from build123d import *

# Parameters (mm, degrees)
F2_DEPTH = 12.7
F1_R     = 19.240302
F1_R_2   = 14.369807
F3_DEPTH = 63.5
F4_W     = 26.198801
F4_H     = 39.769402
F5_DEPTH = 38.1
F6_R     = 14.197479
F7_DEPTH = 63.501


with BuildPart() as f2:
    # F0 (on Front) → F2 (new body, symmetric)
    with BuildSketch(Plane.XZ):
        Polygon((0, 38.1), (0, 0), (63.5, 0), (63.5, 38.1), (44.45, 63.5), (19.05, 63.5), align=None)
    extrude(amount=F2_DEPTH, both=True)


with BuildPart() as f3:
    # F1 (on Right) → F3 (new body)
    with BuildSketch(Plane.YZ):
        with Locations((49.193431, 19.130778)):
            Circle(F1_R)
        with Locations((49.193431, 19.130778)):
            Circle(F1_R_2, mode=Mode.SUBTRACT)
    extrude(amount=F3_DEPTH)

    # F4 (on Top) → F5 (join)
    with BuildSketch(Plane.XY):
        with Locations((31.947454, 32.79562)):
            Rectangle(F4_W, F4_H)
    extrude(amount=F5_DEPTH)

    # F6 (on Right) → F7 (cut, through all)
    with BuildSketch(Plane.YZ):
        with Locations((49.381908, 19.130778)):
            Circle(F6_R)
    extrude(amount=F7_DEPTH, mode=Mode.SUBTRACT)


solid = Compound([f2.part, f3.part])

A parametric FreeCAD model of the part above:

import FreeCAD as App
import Part
import Sketcher
from FreeCAD import Vector
Q = App.Units.Quantity

doc = App.newDocument("Part")
body = doc.addObject("PartDesign::Body", "Body")

# Sketch on XZ plane
sketch1 = body.newObject("Sketcher::SketchObject", "Sketch")
sketch1.AttachmentSupport = (doc.getObject("XZ_Plane"), [""])
sketch1.MapMode = "FlatFace"
sketch1.addGeometry([
    Part.LineSegment(Vector(0, 38, 0), Vector(0, 0, 0)),  # 0
    Part.LineSegment(Vector(0, 0, 0), Vector(64, 0, 0)),  # 1
    Part.LineSegment(Vector(64, 0, 0), Vector(64, 38, 0)),  # 2
    Part.LineSegment(Vector(64, 38, 0), Vector(44, 64, 0)),  # 3
    Part.LineSegment(Vector(44, 64, 0), Vector(19, 64, 0)),  # 4
    Part.LineSegment(Vector(19, 64, 0), Vector(0, 38, 0)),  # 5
], False)
sketch1.addConstraint([
    Sketcher.Constraint("Coincident", 0, 2, 1, 1),
    Sketcher.Constraint("Coincident", 1, 2, 2, 1),
    Sketcher.Constraint("Coincident", 2, 2, 3, 1),
    Sketcher.Constraint("Coincident", 3, 2, 4, 1),
    Sketcher.Constraint("Coincident", 4, 2, 5, 1),
    Sketcher.Constraint("Coincident", 5, 2, 0, 1),
    Sketcher.Constraint("Vertical", 0),
    Sketcher.Constraint("Horizontal", 1),
    Sketcher.Constraint("Vertical", 2),
    Sketcher.Constraint("Horizontal", 4),
    Sketcher.Constraint("Coincident", 0, 2, -1, 1),
    Sketcher.Constraint("Horizontal", 2, 2, 5, 2),
    Sketcher.Constraint("Equal", 3, 5),
    Sketcher.Constraint("DistanceX", 4, 2, 4, 1, Q("1 in")),
    Sketcher.Constraint("DistanceX", 1, 1, 1, 2, Q("2.5 in")),
    Sketcher.Constraint("DistanceY", 0, 2, 0, 1, Q("1.5 in")),
    Sketcher.Constraint("DistanceY", 2, 2, 3, 2, Q("1 in")),
])
pad1 = body.newObject("PartDesign::Pad", "Pad")
pad1.Profile = sketch1
pad1.Length = Q("1 in")
pad1.Midplane = True
body2 = doc.addObject("PartDesign::Body", "Body001")

# Sketch on YZ plane
sketch2 = body2.newObject("Sketcher::SketchObject", "Sketch001")
sketch2.AttachmentSupport = (doc.getObject("YZ_Plane001"), [""])
sketch2.MapMode = "FlatFace"
sketch2.addGeometry([
    Part.Circle(Vector(49, 19, 0), Vector(0, 0, 1), 19),
    Part.Circle(Vector(49, 19, 0), Vector(0, 0, 1), 14),
], False)
sketch2.addConstraint([
    Sketcher.Constraint("Coincident", 1, 3, 0, 3),
    Sketcher.Constraint("Diameter", 0, Q("38.480604 mm")),
    Sketcher.Constraint("Diameter", 1, Q("28.739614 mm")),
    Sketcher.Constraint("DistanceX", -1, 1, 0, 3, Q("49.193431 mm")),
    Sketcher.Constraint("DistanceY", -1, 1, 0, 3, Q("19.130778 mm")),
])
pad2 = body2.newObject("PartDesign::Pad", "Pad001")
pad2.Profile = sketch2
pad2.Length = Q("2.5 in")

# Sketch on XY plane
sketch3 = body2.newObject("Sketcher::SketchObject", "Sketch002")
sketch3.AttachmentSupport = (doc.getObject("XY_Plane001"), [""])
sketch3.MapMode = "FlatFace"
sketch3.addGeometry([
    Part.LineSegment(Vector(19, 53, 0), Vector(19, 13, 0)),
    Part.LineSegment(Vector(19, 13, 0), Vector(45, 13, 0)),
    Part.LineSegment(Vector(45, 13, 0), Vector(45, 53, 0)),
    Part.LineSegment(Vector(45, 53, 0), Vector(19, 53, 0)),
], False)
sketch3.addConstraint([
    Sketcher.Constraint("Coincident", 0, 2, 1, 1),
    Sketcher.Constraint("Coincident", 1, 2, 2, 1),
    Sketcher.Constraint("Coincident", 2, 2, 3, 1),
    Sketcher.Constraint("Coincident", 3, 2, 0, 1),
    Sketcher.Constraint("Vertical", 0),
    Sketcher.Constraint("Horizontal", 1),
    Sketcher.Constraint("Vertical", 2),
    Sketcher.Constraint("Horizontal", 3),
    Sketcher.Constraint("DistanceX", 1, 1, 1, 2, Q("26.198801 mm")),
    Sketcher.Constraint("DistanceY", 0, 2, 0, 1, Q("39.769402 mm")),
    Sketcher.Constraint("DistanceY", -1, 1, 0, 2, Q("12.910919 mm")),
    Sketcher.Constraint("DistanceX", -1, 1, 0, 2, Q("18.848053 mm")),
])
pad3 = body2.newObject("PartDesign::Pad", "Pad002")
pad3.Profile = sketch3
pad3.Length = Q("1.5 in")

# Sketch on YZ plane
sketch4 = body2.newObject("Sketcher::SketchObject", "Sketch003")
sketch4.AttachmentSupport = (doc.getObject("YZ_Plane001"), [""])
sketch4.MapMode = "FlatFace"
sketch4.addGeometry(Part.Circle(Vector(49, 19, 0), Vector(0, 0, 1), 14), False)
sketch4.addConstraint([
    Sketcher.Constraint("Diameter", 0, Q("28.394958 mm")),
    Sketcher.Constraint("DistanceX", -1, 1, 0, 3, Q("49.381908 mm")),
    Sketcher.Constraint("DistanceY", -1, 1, 0, 3, Q("19.130778 mm")),
])
pocket1 = body2.newObject("PartDesign::Pocket", "Pocket")
pocket1.Profile = sketch4
pocket1.Type = "ThroughAll"
pocket1.Reversed = True

doc.recompute()
